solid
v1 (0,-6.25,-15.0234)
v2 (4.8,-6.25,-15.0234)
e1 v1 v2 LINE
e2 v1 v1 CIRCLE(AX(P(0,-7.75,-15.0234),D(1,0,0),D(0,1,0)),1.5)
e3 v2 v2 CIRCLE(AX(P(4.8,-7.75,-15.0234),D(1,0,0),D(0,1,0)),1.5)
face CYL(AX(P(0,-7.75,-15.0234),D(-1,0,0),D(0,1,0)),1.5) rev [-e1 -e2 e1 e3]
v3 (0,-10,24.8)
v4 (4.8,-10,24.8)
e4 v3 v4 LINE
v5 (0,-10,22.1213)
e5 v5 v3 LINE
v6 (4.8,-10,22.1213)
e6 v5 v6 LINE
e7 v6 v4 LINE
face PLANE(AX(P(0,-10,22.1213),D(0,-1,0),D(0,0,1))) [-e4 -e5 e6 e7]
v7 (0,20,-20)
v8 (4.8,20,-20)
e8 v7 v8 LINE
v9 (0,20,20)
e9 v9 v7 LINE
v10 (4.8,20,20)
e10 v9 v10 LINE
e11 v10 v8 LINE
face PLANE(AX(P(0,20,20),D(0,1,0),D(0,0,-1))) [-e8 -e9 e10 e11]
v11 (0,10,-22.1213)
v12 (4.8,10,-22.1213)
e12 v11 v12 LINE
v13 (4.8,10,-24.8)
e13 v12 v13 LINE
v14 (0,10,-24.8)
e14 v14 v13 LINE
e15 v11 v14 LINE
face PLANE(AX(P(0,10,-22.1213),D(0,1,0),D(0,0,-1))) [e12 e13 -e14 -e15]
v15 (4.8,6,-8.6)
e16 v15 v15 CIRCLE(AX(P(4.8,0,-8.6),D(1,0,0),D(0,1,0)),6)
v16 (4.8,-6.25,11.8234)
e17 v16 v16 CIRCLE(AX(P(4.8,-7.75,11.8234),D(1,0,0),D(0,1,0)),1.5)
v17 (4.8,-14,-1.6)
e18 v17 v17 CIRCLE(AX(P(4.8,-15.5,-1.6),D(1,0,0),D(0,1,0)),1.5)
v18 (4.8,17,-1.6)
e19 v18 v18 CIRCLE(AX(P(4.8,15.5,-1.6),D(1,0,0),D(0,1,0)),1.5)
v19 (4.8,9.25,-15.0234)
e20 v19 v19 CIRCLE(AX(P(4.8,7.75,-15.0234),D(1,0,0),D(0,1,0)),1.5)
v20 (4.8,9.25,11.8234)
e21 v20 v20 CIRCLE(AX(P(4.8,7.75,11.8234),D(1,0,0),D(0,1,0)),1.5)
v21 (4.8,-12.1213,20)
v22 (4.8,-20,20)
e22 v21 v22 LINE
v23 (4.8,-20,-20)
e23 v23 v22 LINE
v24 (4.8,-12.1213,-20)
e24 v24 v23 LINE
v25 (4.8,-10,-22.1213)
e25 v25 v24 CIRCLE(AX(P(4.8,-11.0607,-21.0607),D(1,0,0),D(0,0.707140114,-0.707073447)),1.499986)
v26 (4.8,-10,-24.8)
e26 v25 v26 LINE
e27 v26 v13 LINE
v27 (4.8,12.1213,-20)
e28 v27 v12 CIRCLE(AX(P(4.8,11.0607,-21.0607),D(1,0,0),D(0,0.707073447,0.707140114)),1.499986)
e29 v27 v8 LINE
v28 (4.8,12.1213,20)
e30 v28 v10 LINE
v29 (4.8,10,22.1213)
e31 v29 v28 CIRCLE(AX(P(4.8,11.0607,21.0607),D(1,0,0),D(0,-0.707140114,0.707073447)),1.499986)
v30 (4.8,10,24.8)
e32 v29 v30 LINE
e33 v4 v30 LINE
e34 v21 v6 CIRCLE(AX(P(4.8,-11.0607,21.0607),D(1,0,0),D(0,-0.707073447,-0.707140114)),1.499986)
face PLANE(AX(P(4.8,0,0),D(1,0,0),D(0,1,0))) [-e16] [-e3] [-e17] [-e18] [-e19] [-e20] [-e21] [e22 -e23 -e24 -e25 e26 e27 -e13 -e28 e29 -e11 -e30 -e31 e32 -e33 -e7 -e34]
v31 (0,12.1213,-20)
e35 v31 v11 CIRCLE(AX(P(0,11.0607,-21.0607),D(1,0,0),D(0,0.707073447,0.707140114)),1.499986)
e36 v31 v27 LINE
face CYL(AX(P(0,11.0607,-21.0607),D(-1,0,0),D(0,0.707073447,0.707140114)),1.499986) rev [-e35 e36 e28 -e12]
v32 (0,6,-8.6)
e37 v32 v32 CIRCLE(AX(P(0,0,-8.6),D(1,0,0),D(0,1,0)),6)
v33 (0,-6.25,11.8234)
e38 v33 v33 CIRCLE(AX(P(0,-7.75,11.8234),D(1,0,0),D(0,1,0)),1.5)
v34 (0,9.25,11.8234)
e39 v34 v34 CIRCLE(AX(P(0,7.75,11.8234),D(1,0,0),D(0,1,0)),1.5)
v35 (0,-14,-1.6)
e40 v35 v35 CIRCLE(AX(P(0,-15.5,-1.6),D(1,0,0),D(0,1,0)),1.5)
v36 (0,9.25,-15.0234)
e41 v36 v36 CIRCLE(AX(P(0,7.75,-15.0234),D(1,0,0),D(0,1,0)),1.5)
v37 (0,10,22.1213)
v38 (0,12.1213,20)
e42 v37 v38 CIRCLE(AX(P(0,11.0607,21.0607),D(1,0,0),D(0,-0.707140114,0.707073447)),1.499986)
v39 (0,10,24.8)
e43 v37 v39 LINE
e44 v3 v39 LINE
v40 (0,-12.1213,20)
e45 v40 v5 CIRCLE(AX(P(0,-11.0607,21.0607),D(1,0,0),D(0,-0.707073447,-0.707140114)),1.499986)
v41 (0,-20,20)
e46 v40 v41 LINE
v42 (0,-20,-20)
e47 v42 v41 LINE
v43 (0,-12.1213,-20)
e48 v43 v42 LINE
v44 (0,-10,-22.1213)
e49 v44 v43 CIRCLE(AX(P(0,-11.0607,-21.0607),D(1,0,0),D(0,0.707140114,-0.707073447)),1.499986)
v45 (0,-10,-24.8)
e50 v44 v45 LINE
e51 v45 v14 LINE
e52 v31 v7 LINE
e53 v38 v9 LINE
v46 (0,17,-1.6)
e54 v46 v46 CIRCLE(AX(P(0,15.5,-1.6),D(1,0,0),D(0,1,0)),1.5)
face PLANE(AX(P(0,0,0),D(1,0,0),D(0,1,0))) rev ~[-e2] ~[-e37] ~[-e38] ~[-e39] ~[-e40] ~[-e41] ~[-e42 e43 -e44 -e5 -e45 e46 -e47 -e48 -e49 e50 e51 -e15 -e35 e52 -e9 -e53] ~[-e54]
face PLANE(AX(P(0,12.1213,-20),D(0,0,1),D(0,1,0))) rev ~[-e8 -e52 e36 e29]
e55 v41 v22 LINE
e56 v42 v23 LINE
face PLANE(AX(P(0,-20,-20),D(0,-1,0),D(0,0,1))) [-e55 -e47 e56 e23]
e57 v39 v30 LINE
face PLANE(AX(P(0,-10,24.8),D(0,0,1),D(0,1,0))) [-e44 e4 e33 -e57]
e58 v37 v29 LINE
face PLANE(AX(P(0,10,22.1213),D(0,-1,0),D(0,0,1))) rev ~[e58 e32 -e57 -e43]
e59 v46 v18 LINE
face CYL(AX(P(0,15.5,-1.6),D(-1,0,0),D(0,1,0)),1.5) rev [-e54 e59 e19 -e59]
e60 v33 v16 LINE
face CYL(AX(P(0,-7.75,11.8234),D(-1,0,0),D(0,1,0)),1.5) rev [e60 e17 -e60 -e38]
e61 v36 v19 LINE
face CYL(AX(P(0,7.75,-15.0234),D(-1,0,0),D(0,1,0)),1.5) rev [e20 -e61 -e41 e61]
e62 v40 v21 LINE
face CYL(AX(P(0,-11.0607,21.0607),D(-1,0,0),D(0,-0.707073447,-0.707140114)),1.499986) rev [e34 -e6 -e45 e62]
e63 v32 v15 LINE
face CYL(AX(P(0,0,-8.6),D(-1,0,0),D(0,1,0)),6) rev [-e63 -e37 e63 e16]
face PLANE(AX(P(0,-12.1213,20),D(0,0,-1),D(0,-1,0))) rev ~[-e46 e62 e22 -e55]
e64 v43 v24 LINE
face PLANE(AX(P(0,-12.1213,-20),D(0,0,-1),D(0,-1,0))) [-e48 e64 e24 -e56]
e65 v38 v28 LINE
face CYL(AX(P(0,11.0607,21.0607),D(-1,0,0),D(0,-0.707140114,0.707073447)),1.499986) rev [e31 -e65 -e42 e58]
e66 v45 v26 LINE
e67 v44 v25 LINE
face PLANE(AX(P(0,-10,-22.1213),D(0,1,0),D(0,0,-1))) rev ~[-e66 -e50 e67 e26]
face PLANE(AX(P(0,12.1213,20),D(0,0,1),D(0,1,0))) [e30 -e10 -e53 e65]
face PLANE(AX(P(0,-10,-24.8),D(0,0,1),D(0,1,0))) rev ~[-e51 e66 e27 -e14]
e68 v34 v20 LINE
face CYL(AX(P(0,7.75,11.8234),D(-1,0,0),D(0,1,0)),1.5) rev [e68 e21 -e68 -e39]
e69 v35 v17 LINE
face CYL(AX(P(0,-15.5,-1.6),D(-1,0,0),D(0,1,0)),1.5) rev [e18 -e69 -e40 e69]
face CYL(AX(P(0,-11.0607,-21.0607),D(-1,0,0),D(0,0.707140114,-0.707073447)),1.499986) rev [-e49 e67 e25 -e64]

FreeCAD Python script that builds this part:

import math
import FreeCAD as App
import Part
import Sketcher

V = App.Vector

doc = App.newDocument("Part")
params = doc.addObject("Spreadsheet::Sheet", "Params")
for row, (alias, value) in enumerate([
    ("sketch1_diameter", "3 mm"),
    ("sketch1_diameter2", "12 mm"),
    ("sketch1_width", "20 mm"),
    ("sketch1_height", "40 mm"),
    ("pad1_length", "4.8 mm"),
], start=1):
    params.set(f"A{row}", alias)
    params.set(f"B{row}", "=" + value)
    params.setAlias(f"B{row}", alias)

body = doc.addObject("PartDesign::Body", "Body")

# Sketch on YZ plane
sketch1 = body.newObject("Sketcher::SketchObject", "Sketch")
sketch1.AttachmentSupport = (doc.getObject("YZ_Plane"), [""])
sketch1.MapMode = "FlatFace"
sketch1.addGeometry([
    Part.LineSegment(V(20, -20, 0), V(20, 20, 0)),  # 0
    Part.LineSegment(V(20, 20, 0), V(12.1213, 20, 0)),  # 1
    Part.ArcOfCircle(Part.Circle(V(11.0607, 21.0607, 0), V(0, 0, 1), 1.499986), math.radians(135.002701), math.radians(314.997299)),  # 2
    Part.LineSegment(V(10, 22.1213, 0), V(10, 24.8, 0)),  # 3
    Part.LineSegment(V(10, 24.8, 0), V(-10, 24.8, 0)),  # 4
    Part.LineSegment(V(-10, 24.8, 0), V(-10, 22.1213, 0)),  # 5
    Part.ArcOfCircle(Part.Circle(V(-11.0607, 21.0607, 0), V(0, 0, 1), 1.499986), math.radians(-134.997299), math.radians(44.997299)),  # 6
    Part.LineSegment(V(-12.1213, 20, 0), V(-20, 20, 0)),  # 7
    Part.LineSegment(V(-20, 20, 0), V(-20, -20, 0)),  # 8
    Part.LineSegment(V(-20, -20, 0), V(-12.1213, -20, 0)),  # 9
    Part.ArcOfCircle(Part.Circle(V(-11.0607, -21.0607, 0), V(0, 0, 1), 1.499986), math.radians(-44.997299), math.radians(134.997299)),  # 10
    Part.LineSegment(V(-10, -22.1213, 0), V(-10, -24.8, 0)),  # 11
    Part.LineSegment(V(-10, -24.8, 0), V(10, -24.8, 0)),  # 12
    Part.LineSegment(V(10, -24.8, 0), V(10, -22.1213, 0)),  # 13
    Part.ArcOfCircle(Part.Circle(V(11.0607, -21.0607, 0), V(0, 0, 1), 1.499986), math.radians(45.002701), math.radians(224.997299)),  # 14
    Part.LineSegment(V(12.1213, -20, 0), V(20, -20, 0)),  # 15
    Part.Circle(V(-7.75, -15.0234, 0), V(0, 0, 1), 1.5),  # 16
    Part.Circle(V(-15.5, -1.6, 0), V(0, 0, 1), 1.5),  # 17
    Part.Circle(V(7.75, -15.0234, 0), V(0, 0, 1), 1.5),  # 18
    Part.Circle(V(0, -8.6, 0), V(0, 0, 1), 6),  # 19
    Part.Circle(V(15.5, -1.6, 0), V(0, 0, 1), 1.5),  # 20
    Part.Circle(V(-7.75, 11.8234, 0), V(0, 0, 1), 1.5),  # 21
    Part.Circle(V(7.75, 11.8234, 0), V(0, 0, 1), 1.5),  # 22
], False)
sketch1.addConstraint([
    Sketcher.Constraint("Coincident", 0, 2, 1, 1),
    Sketcher.Constraint("Coincident", 1, 2, 2, 2),
    Sketcher.Constraint("Coincident", 2, 1, 3, 1),
    Sketcher.Constraint("Coincident", 3, 2, 4, 1),
    Sketcher.Constraint("Coincident", 4, 2, 5, 1),
    Sketcher.Constraint("Coincident", 5, 2, 6, 2),
    Sketcher.Constraint("Coincident", 6, 1, 7, 1),
    Sketcher.Constraint("Coincident", 7, 2, 8, 1),
    Sketcher.Constraint("Coincident", 8, 2, 9, 1),
    Sketcher.Constraint("Coincident", 9, 2, 10, 2),
    Sketcher.Constraint("Coincident", 10, 1, 11, 1),
    Sketcher.Constraint("Coincident", 11, 2, 12, 1),
    Sketcher.Constraint("Coincident", 12, 2, 13, 1),
    Sketcher.Constraint("Coincident", 13, 2, 14, 2),
    Sketcher.Constraint("Coincident", 14, 1, 15, 1),
    Sketcher.Constraint("Coincident", 15, 2, 0, 1),
    Sketcher.Constraint("Vertical", 0),
    Sketcher.Constraint("Horizontal", 1),
    Sketcher.Constraint("Vertical", 3),
    Sketcher.Constraint("Horizontal", 4),
    Sketcher.Constraint("Vertical", 5),
    Sketcher.Constraint("Horizontal", 7),
    Sketcher.Constraint("Vertical", 8),
    Sketcher.Constraint("Horizontal", 9),
    Sketcher.Constraint("Vertical", 11),
    Sketcher.Constraint("Horizontal", 12),
    Sketcher.Constraint("Vertical", 13),
    Sketcher.Constraint("Horizontal", 15),
    Sketcher.Constraint("Equal", 2, 6),
    Sketcher.Constraint("Equal", 6, 10),
    Sketcher.Constraint("Equal", 10, 14),
    Sketcher.Constraint("Equal", 14, 16),
    Sketcher.Constraint("Equal", 16, 17),
    Sketcher.Constraint("Equal", 17, 18),
    Sketcher.Constraint("Equal", 18, 20),
    Sketcher.Constraint("Equal", 20, 21),
    Sketcher.Constraint("Equal", 21, 22),
    Sketcher.Constraint("Symmetric", 2, 3, 10, 3, -1, 1),
    Sketcher.Constraint("Symmetric", 6, 3, 14, 3, -1, 1),
    Sketcher.Constraint("Symmetric", 0, 2, 8, 2, -1, 1),
    Sketcher.Constraint("Symmetric", 3, 2, 11, 2, -1, 1),
    Sketcher.Constraint("Symmetric", 2, 3, 6, 3, -2),
    Sketcher.Constraint("Symmetric", 16, 3, 18, 3, -2),
    Sketcher.Constraint("Symmetric", 17, 3, 20, 3, -2),
    Sketcher.Constraint("Symmetric", 21, 3, 22, 3, -2),
    Sketcher.Constraint("PointOnObject", 19, 3, -2),
    Sketcher.Constraint("Horizontal", 2, 1, 5, 2),
    Sketcher.Constraint("Horizontal", 1, 2, 6, 1),
    Sketcher.Constraint("Horizontal", 10, 1, 13, 2),
    Sketcher.Constraint("Horizontal", 9, 2, 14, 1),
    Sketcher.Constraint("Vertical", 16, 3, 21, 3),
    Sketcher.Constraint("Diameter", 16, 3.0),
    Sketcher.Constraint("Diameter", 19, 12.0),
    Sketcher.Constraint("DistanceX", 4, 2, 4, 1, 20.0),
    Sketcher.Constraint("DistanceY", 0, 1, 0, 2, 40.0),
    Sketcher.Constraint("DistanceX", -1, 1, 0, 2, 20.0),
    Sketcher.Constraint("DistanceY", 19, 3, 17, 3, 7.0),
    Sketcher.Constraint("DistanceY", 17, 3, -1, 1, 1.6),
    Sketcher.Constraint("DistanceY", 1, 2, 3, 2, 4.8),
    Sketcher.Constraint("DistanceX", 17, 3, -1, 1, 15.5),
    Sketcher.Constraint("DistanceX", 16, 3, 18, 3, 15.5),
    Sketcher.Constraint("DistanceX", 1, 2, 1, 1, 7.8787),
    Sketcher.Constraint("DistanceY", 16, 3, 6, 3, 36.084),
    Sketcher.Constraint("DistanceY", 22, 3, 2, 1, 10.298),
    Sketcher.Constraint("DistanceY", 10, 1, 16, 3, 7.098),
])
sketch1.setExpression("Constraints[51]", "Params.sketch1_diameter")
sketch1.setExpression("Constraints[52]", "Params.sketch1_diameter2")
sketch1.setExpression("Constraints[53]", "Params.sketch1_width")
sketch1.setExpression("Constraints[54]", "Params.sketch1_height")
pad1 = body.newObject("PartDesign::Pad", "Pad")
pad1.Profile = sketch1
pad1.setExpression("Length", "Params.pad1_length")

doc.recompute()
